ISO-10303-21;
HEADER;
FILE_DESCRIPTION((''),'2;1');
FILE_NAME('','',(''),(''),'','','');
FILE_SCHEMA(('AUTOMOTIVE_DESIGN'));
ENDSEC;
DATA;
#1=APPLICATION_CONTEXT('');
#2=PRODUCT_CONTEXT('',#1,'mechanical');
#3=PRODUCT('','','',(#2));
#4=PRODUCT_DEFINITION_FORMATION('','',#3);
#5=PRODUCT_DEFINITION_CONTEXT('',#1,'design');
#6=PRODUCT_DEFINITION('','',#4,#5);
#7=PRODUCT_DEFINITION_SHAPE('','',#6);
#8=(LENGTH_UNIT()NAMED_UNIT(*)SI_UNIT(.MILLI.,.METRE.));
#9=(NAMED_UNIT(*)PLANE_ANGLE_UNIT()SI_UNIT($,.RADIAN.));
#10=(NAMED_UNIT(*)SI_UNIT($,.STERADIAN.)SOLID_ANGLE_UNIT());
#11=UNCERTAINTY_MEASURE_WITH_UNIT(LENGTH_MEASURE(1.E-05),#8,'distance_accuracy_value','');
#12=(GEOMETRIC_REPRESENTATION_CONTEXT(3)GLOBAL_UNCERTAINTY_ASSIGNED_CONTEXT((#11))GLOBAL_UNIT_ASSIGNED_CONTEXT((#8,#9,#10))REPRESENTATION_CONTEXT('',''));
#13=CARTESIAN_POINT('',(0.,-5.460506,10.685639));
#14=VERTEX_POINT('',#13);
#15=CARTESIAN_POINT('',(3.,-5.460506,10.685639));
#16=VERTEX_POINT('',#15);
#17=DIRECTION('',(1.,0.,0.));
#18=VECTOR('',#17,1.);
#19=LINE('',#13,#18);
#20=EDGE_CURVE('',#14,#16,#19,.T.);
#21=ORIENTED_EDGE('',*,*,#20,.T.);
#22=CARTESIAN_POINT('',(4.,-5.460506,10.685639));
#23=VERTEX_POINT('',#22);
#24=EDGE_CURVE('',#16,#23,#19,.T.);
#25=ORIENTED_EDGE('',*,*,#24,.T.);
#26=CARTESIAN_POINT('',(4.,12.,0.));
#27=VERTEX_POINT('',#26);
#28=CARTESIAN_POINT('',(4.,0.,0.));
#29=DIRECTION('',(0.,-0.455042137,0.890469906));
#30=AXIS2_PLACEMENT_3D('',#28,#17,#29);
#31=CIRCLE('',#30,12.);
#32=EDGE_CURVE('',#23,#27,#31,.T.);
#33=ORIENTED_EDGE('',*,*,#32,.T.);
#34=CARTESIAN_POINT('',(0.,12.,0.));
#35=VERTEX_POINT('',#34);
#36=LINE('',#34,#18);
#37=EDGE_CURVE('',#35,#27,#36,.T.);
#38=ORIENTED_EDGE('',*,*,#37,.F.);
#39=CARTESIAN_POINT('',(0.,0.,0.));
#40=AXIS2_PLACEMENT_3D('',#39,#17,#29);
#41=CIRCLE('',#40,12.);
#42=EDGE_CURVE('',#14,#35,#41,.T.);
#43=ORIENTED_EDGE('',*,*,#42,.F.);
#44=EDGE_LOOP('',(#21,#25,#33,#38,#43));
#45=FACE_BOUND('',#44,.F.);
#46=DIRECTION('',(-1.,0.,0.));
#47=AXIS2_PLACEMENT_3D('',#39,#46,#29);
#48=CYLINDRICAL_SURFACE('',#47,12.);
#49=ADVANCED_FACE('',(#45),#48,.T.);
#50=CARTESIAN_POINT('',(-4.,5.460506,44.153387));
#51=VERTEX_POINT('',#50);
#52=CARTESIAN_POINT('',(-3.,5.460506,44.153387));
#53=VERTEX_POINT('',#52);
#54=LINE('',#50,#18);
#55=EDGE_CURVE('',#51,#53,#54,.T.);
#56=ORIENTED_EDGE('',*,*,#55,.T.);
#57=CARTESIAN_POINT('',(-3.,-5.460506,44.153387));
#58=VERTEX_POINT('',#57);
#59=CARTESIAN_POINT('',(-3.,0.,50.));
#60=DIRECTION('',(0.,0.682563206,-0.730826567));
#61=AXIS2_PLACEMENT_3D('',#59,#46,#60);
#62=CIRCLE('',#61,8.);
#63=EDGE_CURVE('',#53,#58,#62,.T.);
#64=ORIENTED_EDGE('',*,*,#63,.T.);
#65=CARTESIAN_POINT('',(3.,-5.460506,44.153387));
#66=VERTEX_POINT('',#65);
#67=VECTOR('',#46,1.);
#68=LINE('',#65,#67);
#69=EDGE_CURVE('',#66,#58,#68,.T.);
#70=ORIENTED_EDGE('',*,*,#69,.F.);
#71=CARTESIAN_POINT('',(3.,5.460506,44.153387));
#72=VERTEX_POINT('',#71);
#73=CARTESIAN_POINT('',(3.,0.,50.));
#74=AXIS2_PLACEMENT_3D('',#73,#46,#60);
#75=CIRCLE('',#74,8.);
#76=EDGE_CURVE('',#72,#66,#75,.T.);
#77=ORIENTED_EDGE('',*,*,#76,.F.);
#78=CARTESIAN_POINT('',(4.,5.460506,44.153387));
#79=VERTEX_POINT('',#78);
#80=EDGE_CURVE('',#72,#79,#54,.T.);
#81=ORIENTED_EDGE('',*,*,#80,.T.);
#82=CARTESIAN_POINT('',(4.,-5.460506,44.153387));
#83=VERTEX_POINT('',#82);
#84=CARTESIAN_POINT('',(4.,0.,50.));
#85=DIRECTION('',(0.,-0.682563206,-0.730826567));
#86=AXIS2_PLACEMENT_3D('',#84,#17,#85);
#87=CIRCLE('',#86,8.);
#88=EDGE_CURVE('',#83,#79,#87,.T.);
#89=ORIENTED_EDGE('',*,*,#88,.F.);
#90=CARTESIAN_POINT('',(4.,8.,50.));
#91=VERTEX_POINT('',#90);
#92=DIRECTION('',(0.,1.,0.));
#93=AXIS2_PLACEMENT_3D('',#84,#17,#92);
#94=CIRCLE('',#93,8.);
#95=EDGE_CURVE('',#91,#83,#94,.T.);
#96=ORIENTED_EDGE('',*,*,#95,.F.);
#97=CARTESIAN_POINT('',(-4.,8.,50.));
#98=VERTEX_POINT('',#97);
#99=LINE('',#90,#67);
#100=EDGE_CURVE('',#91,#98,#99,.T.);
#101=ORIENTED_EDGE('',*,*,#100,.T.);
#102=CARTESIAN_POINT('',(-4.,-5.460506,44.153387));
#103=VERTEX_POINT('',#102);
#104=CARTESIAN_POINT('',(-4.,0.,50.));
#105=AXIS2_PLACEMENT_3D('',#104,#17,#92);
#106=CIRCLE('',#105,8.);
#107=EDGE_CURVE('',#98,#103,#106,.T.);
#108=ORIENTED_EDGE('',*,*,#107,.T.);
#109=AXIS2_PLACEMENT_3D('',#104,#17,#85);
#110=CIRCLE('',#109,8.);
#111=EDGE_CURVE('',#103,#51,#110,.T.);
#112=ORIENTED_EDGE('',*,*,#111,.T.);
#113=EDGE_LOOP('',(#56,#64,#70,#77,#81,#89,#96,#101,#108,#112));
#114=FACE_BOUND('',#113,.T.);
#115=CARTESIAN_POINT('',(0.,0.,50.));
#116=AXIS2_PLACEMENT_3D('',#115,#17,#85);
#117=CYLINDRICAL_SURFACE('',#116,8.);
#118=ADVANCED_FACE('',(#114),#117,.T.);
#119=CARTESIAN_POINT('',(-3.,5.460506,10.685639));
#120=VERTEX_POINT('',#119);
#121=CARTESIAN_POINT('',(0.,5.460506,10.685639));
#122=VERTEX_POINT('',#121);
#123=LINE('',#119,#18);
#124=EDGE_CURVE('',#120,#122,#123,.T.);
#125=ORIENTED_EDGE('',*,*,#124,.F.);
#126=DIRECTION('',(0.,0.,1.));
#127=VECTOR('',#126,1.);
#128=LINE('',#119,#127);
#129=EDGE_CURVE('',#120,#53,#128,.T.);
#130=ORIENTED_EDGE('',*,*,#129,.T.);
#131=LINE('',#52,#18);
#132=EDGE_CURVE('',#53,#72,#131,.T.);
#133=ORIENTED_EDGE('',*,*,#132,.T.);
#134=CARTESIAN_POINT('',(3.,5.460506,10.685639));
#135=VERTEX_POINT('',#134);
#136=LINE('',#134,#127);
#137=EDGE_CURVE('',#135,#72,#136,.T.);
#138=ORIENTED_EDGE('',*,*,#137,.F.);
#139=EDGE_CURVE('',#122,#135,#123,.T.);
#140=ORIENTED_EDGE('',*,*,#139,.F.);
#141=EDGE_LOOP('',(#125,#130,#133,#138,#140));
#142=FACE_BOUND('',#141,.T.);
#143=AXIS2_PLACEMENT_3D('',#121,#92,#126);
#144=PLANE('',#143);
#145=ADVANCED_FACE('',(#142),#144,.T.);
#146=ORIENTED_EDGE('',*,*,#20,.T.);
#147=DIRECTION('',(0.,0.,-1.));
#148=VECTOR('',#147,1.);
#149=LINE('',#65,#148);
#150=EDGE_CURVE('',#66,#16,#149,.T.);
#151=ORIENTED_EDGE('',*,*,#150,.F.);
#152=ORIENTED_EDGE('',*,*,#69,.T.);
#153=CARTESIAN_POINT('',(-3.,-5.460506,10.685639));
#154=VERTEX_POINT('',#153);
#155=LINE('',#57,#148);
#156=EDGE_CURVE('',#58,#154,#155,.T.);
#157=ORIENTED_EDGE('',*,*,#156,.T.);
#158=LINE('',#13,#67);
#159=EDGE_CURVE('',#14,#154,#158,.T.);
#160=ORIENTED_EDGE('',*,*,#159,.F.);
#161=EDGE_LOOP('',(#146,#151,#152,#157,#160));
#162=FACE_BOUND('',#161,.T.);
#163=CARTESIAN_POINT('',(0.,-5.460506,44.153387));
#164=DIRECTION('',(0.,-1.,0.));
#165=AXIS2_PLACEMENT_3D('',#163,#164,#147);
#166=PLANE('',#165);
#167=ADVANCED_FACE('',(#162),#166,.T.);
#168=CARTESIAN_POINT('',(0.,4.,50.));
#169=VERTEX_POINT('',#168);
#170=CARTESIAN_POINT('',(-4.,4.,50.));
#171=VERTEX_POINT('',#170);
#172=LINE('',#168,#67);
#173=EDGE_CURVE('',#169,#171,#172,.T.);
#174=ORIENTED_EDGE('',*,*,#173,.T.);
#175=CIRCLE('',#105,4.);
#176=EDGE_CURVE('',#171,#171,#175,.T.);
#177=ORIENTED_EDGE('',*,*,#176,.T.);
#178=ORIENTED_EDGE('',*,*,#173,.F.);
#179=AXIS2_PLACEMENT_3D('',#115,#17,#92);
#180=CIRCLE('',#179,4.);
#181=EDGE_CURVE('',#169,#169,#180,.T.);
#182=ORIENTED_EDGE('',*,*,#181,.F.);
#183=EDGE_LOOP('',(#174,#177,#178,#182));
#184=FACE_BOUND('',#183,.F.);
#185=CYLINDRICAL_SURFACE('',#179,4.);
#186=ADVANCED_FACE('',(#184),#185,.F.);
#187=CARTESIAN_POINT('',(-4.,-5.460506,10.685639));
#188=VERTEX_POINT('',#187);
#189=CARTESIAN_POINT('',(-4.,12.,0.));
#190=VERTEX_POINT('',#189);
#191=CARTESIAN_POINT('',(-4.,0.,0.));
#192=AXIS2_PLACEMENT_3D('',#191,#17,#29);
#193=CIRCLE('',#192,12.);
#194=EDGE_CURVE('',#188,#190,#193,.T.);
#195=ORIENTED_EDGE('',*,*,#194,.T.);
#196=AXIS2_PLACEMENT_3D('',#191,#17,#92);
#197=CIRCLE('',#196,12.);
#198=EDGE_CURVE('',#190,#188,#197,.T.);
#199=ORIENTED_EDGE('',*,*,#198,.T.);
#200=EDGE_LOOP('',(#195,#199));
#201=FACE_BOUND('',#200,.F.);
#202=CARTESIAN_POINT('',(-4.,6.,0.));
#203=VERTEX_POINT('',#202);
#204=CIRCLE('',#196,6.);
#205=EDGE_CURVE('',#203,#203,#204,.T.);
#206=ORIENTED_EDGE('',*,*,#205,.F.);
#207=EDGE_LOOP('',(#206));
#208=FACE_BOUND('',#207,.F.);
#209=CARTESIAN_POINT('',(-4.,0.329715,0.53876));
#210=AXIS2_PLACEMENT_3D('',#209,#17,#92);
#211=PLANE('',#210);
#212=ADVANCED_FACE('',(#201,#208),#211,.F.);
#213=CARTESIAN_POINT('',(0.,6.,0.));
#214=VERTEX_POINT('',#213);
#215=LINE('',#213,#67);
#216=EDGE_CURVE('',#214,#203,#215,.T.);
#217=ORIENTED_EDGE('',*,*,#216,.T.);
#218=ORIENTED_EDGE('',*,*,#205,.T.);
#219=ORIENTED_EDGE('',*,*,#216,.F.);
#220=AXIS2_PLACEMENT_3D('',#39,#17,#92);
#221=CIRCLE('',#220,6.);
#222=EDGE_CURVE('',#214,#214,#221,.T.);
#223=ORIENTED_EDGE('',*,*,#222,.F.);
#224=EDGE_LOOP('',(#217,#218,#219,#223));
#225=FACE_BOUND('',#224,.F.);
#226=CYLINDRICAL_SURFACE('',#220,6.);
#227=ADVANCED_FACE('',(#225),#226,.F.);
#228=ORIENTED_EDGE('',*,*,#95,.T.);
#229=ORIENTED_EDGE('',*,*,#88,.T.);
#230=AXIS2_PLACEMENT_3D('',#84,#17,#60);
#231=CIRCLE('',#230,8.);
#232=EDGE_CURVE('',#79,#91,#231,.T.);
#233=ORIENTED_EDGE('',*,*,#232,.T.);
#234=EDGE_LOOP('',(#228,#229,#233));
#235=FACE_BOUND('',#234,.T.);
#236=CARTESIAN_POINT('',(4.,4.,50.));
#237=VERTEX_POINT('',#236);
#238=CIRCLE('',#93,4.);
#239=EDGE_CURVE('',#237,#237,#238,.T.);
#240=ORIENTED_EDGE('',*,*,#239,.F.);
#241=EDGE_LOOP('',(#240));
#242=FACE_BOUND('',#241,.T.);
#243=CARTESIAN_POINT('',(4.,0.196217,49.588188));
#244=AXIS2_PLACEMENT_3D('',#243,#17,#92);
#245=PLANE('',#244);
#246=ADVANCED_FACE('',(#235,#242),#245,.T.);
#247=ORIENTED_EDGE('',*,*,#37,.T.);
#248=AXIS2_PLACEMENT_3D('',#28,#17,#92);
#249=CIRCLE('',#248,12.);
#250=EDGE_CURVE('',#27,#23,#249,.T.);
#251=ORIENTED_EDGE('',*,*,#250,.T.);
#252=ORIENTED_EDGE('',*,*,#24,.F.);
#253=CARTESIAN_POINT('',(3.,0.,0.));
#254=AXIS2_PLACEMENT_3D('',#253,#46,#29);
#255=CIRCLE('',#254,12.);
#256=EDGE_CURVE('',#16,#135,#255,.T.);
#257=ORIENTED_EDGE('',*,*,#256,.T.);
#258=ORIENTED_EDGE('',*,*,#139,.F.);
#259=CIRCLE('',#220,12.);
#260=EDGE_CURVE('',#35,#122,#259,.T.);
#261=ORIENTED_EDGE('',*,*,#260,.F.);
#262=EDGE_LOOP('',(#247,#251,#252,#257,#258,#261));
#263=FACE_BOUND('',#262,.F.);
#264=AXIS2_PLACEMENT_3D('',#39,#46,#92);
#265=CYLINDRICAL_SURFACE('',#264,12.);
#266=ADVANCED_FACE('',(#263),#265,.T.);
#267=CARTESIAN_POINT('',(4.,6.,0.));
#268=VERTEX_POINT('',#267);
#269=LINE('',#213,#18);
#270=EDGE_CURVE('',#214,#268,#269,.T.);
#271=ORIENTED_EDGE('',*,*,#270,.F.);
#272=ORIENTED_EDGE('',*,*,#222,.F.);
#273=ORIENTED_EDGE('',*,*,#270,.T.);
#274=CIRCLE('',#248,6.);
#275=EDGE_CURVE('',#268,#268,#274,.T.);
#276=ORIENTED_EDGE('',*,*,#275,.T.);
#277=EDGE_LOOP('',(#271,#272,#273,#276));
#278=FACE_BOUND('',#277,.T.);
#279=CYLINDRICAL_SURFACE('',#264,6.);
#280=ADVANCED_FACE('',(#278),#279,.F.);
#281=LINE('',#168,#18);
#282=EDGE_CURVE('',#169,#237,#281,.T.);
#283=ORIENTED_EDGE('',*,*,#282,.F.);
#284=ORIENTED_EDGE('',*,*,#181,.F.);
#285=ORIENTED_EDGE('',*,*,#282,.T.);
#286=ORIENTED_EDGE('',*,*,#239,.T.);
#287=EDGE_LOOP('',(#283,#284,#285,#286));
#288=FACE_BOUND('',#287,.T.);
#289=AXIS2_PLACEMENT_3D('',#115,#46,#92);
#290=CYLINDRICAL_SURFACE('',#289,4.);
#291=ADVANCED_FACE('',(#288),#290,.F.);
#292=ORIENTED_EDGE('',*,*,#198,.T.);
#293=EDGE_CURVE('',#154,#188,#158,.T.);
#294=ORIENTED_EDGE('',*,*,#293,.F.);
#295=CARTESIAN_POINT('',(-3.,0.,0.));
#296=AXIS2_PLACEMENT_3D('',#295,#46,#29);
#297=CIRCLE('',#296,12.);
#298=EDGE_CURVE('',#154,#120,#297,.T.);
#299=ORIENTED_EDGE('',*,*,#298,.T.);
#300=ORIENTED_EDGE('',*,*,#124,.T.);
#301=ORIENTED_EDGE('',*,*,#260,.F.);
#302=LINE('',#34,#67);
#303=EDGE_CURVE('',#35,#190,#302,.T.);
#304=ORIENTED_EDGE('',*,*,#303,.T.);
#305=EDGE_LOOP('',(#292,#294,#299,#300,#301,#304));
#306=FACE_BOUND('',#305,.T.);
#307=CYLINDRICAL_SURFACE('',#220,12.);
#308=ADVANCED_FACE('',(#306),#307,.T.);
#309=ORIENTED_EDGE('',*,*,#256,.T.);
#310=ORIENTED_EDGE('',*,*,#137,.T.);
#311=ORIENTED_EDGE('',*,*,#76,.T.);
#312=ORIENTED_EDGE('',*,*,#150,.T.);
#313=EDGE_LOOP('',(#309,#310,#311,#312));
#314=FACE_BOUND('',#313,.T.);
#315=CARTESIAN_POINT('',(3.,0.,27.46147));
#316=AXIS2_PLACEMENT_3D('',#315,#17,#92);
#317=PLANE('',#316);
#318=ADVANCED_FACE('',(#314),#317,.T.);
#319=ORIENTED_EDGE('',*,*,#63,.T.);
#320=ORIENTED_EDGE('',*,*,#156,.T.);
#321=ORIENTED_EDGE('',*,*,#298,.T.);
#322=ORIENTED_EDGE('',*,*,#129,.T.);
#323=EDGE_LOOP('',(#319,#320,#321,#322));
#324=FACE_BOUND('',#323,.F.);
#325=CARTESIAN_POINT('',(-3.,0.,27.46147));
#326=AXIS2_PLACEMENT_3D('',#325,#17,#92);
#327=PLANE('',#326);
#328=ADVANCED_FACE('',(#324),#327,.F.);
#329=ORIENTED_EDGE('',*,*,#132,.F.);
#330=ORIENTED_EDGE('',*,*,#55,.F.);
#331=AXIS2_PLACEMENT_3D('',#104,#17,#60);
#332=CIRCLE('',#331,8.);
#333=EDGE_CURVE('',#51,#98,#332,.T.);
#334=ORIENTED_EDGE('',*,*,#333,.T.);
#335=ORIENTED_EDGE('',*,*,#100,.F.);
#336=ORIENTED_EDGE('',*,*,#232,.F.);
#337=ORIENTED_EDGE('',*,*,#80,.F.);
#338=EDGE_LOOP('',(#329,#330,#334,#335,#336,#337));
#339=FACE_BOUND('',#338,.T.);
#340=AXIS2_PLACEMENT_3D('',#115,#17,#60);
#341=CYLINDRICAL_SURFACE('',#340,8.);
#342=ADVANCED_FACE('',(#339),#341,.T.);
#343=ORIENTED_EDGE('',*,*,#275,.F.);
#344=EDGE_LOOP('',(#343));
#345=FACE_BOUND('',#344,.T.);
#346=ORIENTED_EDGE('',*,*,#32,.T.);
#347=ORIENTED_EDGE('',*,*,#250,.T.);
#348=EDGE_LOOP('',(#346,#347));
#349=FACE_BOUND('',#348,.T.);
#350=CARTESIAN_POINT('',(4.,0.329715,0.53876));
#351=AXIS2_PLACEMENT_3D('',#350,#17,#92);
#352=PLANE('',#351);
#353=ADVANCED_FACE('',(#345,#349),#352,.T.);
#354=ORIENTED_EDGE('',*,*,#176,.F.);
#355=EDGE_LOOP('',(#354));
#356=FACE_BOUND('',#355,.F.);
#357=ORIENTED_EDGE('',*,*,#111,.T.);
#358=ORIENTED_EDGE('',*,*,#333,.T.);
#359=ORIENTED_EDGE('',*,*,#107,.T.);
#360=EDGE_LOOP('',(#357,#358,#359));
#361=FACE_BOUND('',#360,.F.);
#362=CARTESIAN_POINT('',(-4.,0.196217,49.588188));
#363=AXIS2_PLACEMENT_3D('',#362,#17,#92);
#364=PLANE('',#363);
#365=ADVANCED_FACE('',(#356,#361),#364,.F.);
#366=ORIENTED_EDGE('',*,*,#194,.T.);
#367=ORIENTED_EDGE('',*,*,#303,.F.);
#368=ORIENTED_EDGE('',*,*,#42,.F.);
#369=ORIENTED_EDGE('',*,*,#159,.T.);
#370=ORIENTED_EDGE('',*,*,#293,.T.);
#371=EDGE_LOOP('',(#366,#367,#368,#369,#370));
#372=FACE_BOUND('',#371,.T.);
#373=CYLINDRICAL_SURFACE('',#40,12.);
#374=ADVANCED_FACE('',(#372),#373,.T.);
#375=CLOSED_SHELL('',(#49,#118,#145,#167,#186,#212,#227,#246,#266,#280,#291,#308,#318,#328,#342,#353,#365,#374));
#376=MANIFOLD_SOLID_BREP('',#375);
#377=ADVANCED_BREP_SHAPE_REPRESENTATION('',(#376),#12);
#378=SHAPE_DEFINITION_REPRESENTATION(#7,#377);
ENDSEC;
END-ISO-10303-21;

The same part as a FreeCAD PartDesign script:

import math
import FreeCAD as App
import Part
import Sketcher

V = App.Vector
Q = App.Units.Quantity

doc = App.newDocument("Part")
body = doc.addObject("PartDesign::Body", "Body")

sketch1 = body.newObject("Sketcher::SketchObject", "Sketch")
sketch1.AttachmentSupport = (doc.getObject("YZ_Plane"), [""])
sketch1.MapMode = "FlatFace"
sketch1.addGeometry([
    Part.ArcOfCircle(Part.Circle(V(0, 0, 0), V(0, 0, 1), 12), math.radians(117), math.radians(360)),
    Part.ArcOfCircle(Part.Circle(V(0, 0, 0), V(0, 0, 1), 12), math.radians(0), math.radians(117)),
    Part.Circle(V(0, 0, 0), V(0, 0, 1), 6),
], False)
sketch1.addConstraint([
    Sketcher.Constraint("Tangent", 0, 1, 1, 2),
    Sketcher.Constraint("Coincident", 1, 1, 0, 2),
    Sketcher.Constraint("Coincident", 0, 3, -1, 1),
    Sketcher.Constraint("Coincident", 2, 3, -1, 1),
    Sketcher.Constraint("PointOnObject", 1, 1, -1),
    Sketcher.Constraint("Diameter", 2, Q("12 mm")),
    Sketcher.Constraint("Radius", 0, Q("12 mm")),
    Sketcher.Constraint("DistanceY", -1, 1, 0, 1, Q("10.685639 mm")),
])
pad1 = body.newObject("PartDesign::Pad", "Pad")
pad1.Profile = sketch1
pad1.Length = 8
pad1.Midplane = True
body2 = doc.addObject("PartDesign::Body", "Body001")

sketch2 = body2.newObject("Sketcher::SketchObject", "Sketch001")
sketch2.AttachmentSupport = (doc.getObject("YZ_Plane001"), [""])
sketch2.MapMode = "FlatFace"
sketch2.addGeometry([
    Part.ArcOfCircle(Part.Circle(V(0, 50, 0), V(0, 0, 1), 8), math.radians(-133), math.radians(-47)),
    Part.ArcOfCircle(Part.Circle(V(0, 50, 0), V(0, 0, 1), 8), math.radians(-47), math.radians(0)),
    Part.ArcOfCircle(Part.Circle(V(0, 50, 0), V(0, 0, 1), 8), math.radians(0), math.radians(227)),
    Part.Circle(V(0, 50, 0), V(0, 0, 1), 4),
], False)
sketch2.addConstraint([
    Sketcher.Constraint("Tangent", 0, 2, 1, 1),
    Sketcher.Constraint("Tangent", 1, 2, 2, 1),
    Sketcher.Constraint("Tangent", 2, 2, 0, 1),
    Sketcher.Constraint("Coincident", 3, 3, 0, 3),
    Sketcher.Constraint("Symmetric", 0, 2, 2, 2, -2),
    Sketcher.Constraint("Horizontal", 3, 3, 1, 2),
    Sketcher.Constraint("Diameter", 3, Q("8 mm")),
    Sketcher.Constraint("Radius", 0, Q("8 mm")),
    Sketcher.Constraint("DistanceY", -1, 1, 0, 3, Q("50 mm")),
    Sketcher.Constraint("DistanceX", 2, 2, 0, 2, Q("10.921011 mm")),
])
pad2 = body2.newObject("PartDesign::Pad", "Pad001")
pad2.Profile = sketch2
pad2.Length = 8
pad2.Midplane = True
body.AllowCompound = True
doc.recompute()

boolean = body.newObject("PartDesign::Boolean", "Boolean")
boolean.Type = "Fuse"
boolean.addObjects([body2])

sketch3 = body.newObject("Sketcher::SketchObject", "Sketch002")
sketch3.AttachmentSupport = (doc.getObject("YZ_Plane"), [""])
sketch3.MapMode = "FlatFace"
sketch3.addGeometry([
    Part.ArcOfCircle(Part.Circle(V(0, 0, 0), V(0, 0, 1), 12), math.radians(63), math.radians(117)),
    Part.LineSegment(V(5, 11, 0), V(5, 44, 0)),
    Part.ArcOfCircle(Part.Circle(V(0, 50, 0), V(0, 0, 1), 8), math.radians(-133), math.radians(-47)),
    Part.LineSegment(V(-5, 44, 0), V(-5, 11, 0)),
], False)
sketch3.addConstraint([
    Sketcher.Constraint("Coincident", 0, 1, 1, 1),
    Sketcher.Constraint("Coincident", 1, 2, 2, 2),
    Sketcher.Constraint("Coincident", 2, 1, 3, 1),
    Sketcher.Constraint("Coincident", 3, 2, 0, 2),
    Sketcher.Constraint("Vertical", 1),
    Sketcher.Constraint("Vertical", 3),
    Sketcher.Constraint("Coincident", 0, 3, -1, 1),
    Sketcher.Constraint("Symmetric", 1, 2, 2, 1, -2),
    Sketcher.Constraint("Radius", 0, Q("12 mm")),
    Sketcher.Constraint("Radius", 2, Q("8 mm")),
    Sketcher.Constraint("DistanceY", -1, 1, 2, 3, Q("50 mm")),
    Sketcher.Constraint("DistanceY", 1, 1, 1, 2, Q("33.467749 mm")),
])
pad3 = body.newObject("PartDesign::Pad", "Pad002")
pad3.Profile = sketch3
pad3.Length = 6
pad3.Midplane = True

doc.recompute()
